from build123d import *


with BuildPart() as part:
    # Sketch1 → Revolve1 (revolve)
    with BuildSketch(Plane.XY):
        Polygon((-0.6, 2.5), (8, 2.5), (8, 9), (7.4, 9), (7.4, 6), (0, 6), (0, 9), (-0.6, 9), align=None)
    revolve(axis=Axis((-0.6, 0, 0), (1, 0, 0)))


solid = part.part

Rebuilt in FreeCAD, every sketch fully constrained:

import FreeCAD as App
import Part
import Sketcher
from FreeCAD import Vector

doc = App.newDocument("Part")
body = doc.addObject("PartDesign::Body", "Body")

sketch1 = body.newObject("Sketcher::SketchObject", "Sketch")
sketch1.AttachmentSupport = (doc.getObject("XY_Plane"), [""])
sketch1.MapMode = "FlatFace"
sketch1.addGeometry(Part.LineSegment(Vector(-0.6, 2.5, 0), Vector(8, 2.5, 0)), False)
sketch1.addGeometry(Part.LineSegment(Vector(8, 2.5, 0), Vector(8, 9, 0)), False)
sketch1.addGeometry(Part.LineSegment(Vector(8, 9, 0), Vector(7.4, 9, 0)), False)
sketch1.addGeometry(Part.LineSegment(Vector(7.4, 9, 0), Vector(7.4, 6, 0)), False)
sketch1.addGeometry(Part.LineSegment(Vector(7.4, 6, 0), Vector(0, 6, 0)), False)
sketch1.addGeometry(Part.LineSegment(Vector(0, 6, 0), Vector(0, 9, 0)), False)
sketch1.addGeometry(Part.LineSegment(Vector(0, 9, 0), Vector(-0.6, 9, 0)), False)
sketch1.addGeometry(Part.LineSegment(Vector(-0.6, 9, 0), Vector(-0.6, 2.5, 0)), False)
sketch1.addConstraint(Sketcher.Constraint("Coincident", 0, 2, 1, 1))
sketch1.addConstraint(Sketcher.Constraint("Coincident", 1, 2, 2, 1))
sketch1.addConstraint(Sketcher.Constraint("Coincident", 2, 2, 3, 1))
sketch1.addConstraint(Sketcher.Constraint("Coincident", 3, 2, 4, 1))
sketch1.addConstraint(Sketcher.Constraint("Coincident", 4, 2, 5, 1))
sketch1.addConstraint(Sketcher.Constraint("Coincident", 5, 2, 6, 1))
sketch1.addConstraint(Sketcher.Constraint("Coincident", 6, 2, 7, 1))
sketch1.addConstraint(Sketcher.Constraint("Coincident", 7, 2, 0, 1))
sketch1.addConstraint(Sketcher.Constraint("Horizontal", 0))
sketch1.addConstraint(Sketcher.Constraint("Vertical", 1))
sketch1.addConstraint(Sketcher.Constraint("Horizontal", 2))
sketch1.addConstraint(Sketcher.Constraint("Vertical", 3))
sketch1.addConstraint(Sketcher.Constraint("Horizontal", 4))
sketch1.addConstraint(Sketcher.Constraint("Vertical", 5))
sketch1.addConstraint(Sketcher.Constraint("Horizontal", 6))
sketch1.addConstraint(Sketcher.Constraint("Vertical", 7))
sketch1.addConstraint(Sketcher.Constraint("PointOnObject", 4, 2, -2))
sketch1.addConstraint(Sketcher.Constraint("Horizontal", 2, 2, 5, 2))
sketch1.addConstraint(Sketcher.Constraint("Equal", 2, 6))
sketch1.addConstraint(Sketcher.Constraint("DistanceY", 3, 2, 3, 1, 3.0))
sketch1.addConstraint(Sketcher.Constraint("DistanceX", 0, 1, 0, 2, 8.6))
sketch1.addConstraint(Sketcher.Constraint("DistanceX", 2, 2, 2, 1, 0.6))
sketch1.addConstraint(Sketcher.Constraint("DistanceY", 1, 1, 1, 2, 6.5))
sketch1.addConstraint(Sketcher.Constraint("DistanceY", -1, 1, 1, 2, 9.0))
revolution = body.newObject("PartDesign::Revolution", "Revolution")
revolution.Profile = sketch1
revolution.ReferenceAxis = (sketch1, ["H_Axis"])
revolution.Angle = 360

doc.recompute()
